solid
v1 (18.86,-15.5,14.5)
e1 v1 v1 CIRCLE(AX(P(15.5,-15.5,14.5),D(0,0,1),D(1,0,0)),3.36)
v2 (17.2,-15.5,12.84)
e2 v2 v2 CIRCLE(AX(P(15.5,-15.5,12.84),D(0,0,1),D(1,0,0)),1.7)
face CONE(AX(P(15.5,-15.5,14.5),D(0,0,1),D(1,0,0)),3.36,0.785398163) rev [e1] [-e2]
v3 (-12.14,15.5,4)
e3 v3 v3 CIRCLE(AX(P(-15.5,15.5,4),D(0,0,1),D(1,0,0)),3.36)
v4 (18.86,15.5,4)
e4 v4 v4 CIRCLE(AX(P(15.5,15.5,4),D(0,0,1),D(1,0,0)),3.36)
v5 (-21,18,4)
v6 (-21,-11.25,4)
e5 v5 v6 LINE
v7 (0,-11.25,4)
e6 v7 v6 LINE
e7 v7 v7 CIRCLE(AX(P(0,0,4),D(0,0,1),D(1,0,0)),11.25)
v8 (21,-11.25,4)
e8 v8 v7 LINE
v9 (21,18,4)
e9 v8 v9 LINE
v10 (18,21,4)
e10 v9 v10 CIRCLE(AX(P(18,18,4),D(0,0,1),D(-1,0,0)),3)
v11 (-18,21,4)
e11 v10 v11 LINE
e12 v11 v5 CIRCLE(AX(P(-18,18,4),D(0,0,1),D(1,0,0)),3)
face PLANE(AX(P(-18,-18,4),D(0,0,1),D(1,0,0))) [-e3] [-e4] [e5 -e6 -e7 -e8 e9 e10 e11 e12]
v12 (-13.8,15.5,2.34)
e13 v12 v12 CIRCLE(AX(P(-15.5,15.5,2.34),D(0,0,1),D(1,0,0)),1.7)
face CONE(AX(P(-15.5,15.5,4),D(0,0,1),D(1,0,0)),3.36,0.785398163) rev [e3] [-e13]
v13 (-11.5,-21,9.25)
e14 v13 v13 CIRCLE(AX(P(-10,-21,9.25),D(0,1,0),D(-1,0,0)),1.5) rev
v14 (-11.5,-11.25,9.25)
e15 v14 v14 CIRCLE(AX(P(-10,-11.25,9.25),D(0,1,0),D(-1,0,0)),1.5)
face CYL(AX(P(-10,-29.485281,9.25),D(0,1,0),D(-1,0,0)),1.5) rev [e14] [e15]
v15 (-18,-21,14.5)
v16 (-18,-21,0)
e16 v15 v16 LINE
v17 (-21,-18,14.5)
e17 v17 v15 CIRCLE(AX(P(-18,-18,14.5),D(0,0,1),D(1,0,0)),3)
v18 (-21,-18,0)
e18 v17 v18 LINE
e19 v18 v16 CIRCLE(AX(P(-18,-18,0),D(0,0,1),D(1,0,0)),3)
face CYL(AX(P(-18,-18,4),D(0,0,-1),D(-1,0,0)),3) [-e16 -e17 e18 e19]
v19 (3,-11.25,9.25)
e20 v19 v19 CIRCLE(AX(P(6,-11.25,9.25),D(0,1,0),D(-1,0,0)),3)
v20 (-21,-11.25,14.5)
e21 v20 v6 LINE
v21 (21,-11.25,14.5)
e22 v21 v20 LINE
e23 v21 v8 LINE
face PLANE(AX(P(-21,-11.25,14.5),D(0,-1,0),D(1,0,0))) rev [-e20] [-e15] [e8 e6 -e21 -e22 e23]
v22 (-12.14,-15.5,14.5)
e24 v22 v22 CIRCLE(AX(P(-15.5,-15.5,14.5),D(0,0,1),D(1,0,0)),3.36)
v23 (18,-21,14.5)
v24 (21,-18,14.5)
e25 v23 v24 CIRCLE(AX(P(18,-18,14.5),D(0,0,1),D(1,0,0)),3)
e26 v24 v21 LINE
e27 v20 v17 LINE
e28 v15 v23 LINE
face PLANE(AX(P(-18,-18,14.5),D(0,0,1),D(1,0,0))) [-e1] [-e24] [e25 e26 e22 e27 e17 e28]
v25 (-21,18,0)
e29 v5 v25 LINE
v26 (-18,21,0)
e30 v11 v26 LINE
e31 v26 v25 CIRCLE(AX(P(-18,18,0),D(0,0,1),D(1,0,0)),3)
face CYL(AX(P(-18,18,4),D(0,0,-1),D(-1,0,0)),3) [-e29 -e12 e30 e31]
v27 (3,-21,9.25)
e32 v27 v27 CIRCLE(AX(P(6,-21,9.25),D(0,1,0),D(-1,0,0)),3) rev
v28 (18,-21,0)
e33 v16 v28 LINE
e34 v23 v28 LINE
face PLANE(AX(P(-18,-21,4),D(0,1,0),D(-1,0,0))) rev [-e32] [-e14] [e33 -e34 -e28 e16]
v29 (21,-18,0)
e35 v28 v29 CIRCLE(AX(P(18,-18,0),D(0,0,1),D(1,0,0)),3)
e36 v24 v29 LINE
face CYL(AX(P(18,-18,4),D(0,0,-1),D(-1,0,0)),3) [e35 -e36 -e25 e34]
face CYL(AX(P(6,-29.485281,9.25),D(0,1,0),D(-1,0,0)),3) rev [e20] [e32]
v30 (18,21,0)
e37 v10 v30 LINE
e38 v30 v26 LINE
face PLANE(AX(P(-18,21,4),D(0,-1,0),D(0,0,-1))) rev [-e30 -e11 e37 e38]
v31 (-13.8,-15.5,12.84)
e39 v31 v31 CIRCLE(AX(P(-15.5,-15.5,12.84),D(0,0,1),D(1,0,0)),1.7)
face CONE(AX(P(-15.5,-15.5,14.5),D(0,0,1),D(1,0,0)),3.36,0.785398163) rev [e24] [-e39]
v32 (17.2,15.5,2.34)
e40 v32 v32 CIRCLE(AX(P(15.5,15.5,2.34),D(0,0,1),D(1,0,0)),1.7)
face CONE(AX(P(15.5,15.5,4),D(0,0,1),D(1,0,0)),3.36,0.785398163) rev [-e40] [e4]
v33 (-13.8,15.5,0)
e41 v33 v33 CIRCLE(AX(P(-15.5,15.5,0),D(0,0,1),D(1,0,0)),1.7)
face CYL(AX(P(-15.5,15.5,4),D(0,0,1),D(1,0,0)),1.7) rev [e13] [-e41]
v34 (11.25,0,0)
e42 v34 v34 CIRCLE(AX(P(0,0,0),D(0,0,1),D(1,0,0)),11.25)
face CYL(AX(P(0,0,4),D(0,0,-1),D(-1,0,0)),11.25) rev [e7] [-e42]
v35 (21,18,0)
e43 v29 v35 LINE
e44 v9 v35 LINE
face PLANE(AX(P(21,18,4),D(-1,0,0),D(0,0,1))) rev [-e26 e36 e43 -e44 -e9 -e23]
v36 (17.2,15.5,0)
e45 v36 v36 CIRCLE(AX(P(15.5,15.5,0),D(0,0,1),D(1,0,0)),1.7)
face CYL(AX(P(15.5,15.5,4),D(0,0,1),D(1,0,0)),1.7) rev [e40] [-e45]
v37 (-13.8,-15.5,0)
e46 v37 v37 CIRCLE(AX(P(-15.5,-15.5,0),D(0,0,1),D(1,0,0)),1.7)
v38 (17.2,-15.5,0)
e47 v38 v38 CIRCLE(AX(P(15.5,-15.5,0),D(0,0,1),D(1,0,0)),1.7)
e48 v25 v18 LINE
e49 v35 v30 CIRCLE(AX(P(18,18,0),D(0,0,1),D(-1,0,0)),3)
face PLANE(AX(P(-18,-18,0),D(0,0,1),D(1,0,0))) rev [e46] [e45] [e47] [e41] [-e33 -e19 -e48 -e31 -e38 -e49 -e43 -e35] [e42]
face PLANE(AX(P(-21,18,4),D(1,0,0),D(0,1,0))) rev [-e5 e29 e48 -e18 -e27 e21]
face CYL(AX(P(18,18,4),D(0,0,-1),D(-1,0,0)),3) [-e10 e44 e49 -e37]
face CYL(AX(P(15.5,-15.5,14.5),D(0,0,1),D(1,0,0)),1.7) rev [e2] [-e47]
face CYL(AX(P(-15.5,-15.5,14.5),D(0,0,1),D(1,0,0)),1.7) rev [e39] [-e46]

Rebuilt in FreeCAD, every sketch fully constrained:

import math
import FreeCAD as App
import Part
import Sketcher

doc = App.newDocument("Part")
body = doc.addObject("PartDesign::Body", "Body")

sketch1 = body.newObject("Sketcher::SketchObject", "Sketch")
sketch1.AttachmentSupport = (doc.getObject("XY_Plane"), [""])
sketch1.MapMode = "FlatFace"
sketch1.addGeometry([
    Part.LineSegment(App.Vector(18, 21, 0), App.Vector(-18, 21, 0)),
    Part.ArcOfCircle(Part.Circle(App.Vector(-18, 18, 0), App.Vector(0, 0, 1), 3), math.radians(90), math.radians(180)),
    Part.LineSegment(App.Vector(-21, 18, 0), App.Vector(-21, -18, 0)),
    Part.ArcOfCircle(Part.Circle(App.Vector(-18, -18, 0), App.Vector(0, 0, 1), 3), math.radians(180), math.radians(270)),
    Part.LineSegment(App.Vector(-18, -21, 0), App.Vector(18, -21, 0)),
    Part.ArcOfCircle(Part.Circle(App.Vector(18, -18, 0), App.Vector(0, 0, 1), 3), math.radians(-90), math.radians(0)),
    Part.LineSegment(App.Vector(21, -18, 0), App.Vector(21, 18, 0)),
    Part.ArcOfCircle(Part.Circle(App.Vector(18, 18, 0), App.Vector(0, 0, 1), 3), math.radians(0), math.radians(90)),
    Part.Circle(App.Vector(15.5, -15.5, 0), App.Vector(0, 0, 1), 1),
    Part.Circle(App.Vector(-15.5, -15.5, 0), App.Vector(0, 0, 1), 1),
    Part.Circle(App.Vector(15.5, 15.5, 0), App.Vector(0, 0, 1), 1),
    Part.Circle(App.Vector(0, 0, 0), App.Vector(0, 0, 1), 11.2),
    Part.Circle(App.Vector(-15.5, 15.5, 0), App.Vector(0, 0, 1), 1),
], False)
sketch1.addConstraint([
    Sketcher.Constraint("Tangent", 0, 2, 1, 1),
    Sketcher.Constraint("Tangent", 1, 2, 2, 1),
    Sketcher.Constraint("Tangent", 2, 2, 3, 1),
    Sketcher.Constraint("Tangent", 3, 2, 4, 1),
    Sketcher.Constraint("Tangent", 4, 2, 5, 1),
    Sketcher.Constraint("Tangent", 5, 2, 6, 1),
    Sketcher.Constraint("Tangent", 6, 2, 7, 1),
    Sketcher.Constraint("Tangent", 7, 2, 0, 1),
    Sketcher.Constraint("Horizontal", 0),
    Sketcher.Constraint("Vertical", 2),
    Sketcher.Constraint("Horizontal", 4),
    Sketcher.Constraint("Vertical", 6),
    Sketcher.Constraint("Coincident", 11, 3, -1, 1),
    Sketcher.Constraint("Equal", 1, 3),
    Sketcher.Constraint("Equal", 3, 5),
    Sketcher.Constraint("Equal", 5, 7),
    Sketcher.Constraint("Equal", 8, 9),
    Sketcher.Constraint("Equal", 9, 10),
    Sketcher.Constraint("Equal", 10, 12),
    Sketcher.Constraint("Symmetric", 1, 3, 5, 3, -1, 1),
    Sketcher.Constraint("Symmetric", 9, 3, 10, 3, -1, 1),
    Sketcher.Constraint("Symmetric", 8, 3, 12, 3, -1, 1),
    Sketcher.Constraint("Symmetric", 8, 3, 9, 3, -2),
    Sketcher.Constraint("Equal", 4, 2),
    Sketcher.Constraint("Diameter", 8, 2.0),
    Sketcher.Constraint("Radius", 1, 3.0),
    Sketcher.Constraint("Diameter", 11, 22.5),
    Sketcher.Constraint("DistanceX", 0, 2, 0, 1, 36.0),
    Sketcher.Constraint("DistanceX", 9, 3, 8, 3, 31.0),
    Sketcher.Constraint("DistanceY", 8, 3, 10, 3, 31.0),
])
pad1 = body.newObject("PartDesign::Pad", "Pad")
pad1.Profile = sketch1
pad1.Length = 4

sketch2 = body.newObject("Sketcher::SketchObject", "Sketch001")
sketch2.AttachmentSupport = (doc.getObject("XY_Plane"), [""])
sketch2.MapMode = "FlatFace"
sketch2.AttachmentOffset = App.Placement(App.Vector(0, 0, 4), App.Rotation())
sketch2.addGeometry([
    Part.LineSegment(App.Vector(21, -11.2, 0), App.Vector(-21, -11.2, 0)),
    Part.LineSegment(App.Vector(-21, -11.2, 0), App.Vector(-21, -18, 0)),
    Part.ArcOfCircle(Part.Circle(App.Vector(-18, -18, 0), App.Vector(0, 0, 1), 3), math.radians(180), math.radians(270)),
    Part.LineSegment(App.Vector(-18, -21, 0), App.Vector(18, -21, 0)),
    Part.ArcOfCircle(Part.Circle(App.Vector(18, -18, 0), App.Vector(0, 0, 1), 3), math.radians(-90), math.radians(0)),
    Part.LineSegment(App.Vector(21, -18, 0), App.Vector(21, -11.2, 0)),
    Part.Circle(App.Vector(15.5, -15.5, 0), App.Vector(0, 0, 1), 1),
    Part.Circle(App.Vector(-15.5, -15.5, 0), App.Vector(0, 0, 1), 1),
], False)
sketch2.addConstraint([
    Sketcher.Constraint("Coincident", 0, 2, 1, 1),
    Sketcher.Constraint("Tangent", 1, 2, 2, 1),
    Sketcher.Constraint("Tangent", 2, 2, 3, 1),
    Sketcher.Constraint("Tangent", 3, 2, 4, 1),
    Sketcher.Constraint("Tangent", 4, 2, 5, 1),
    Sketcher.Constraint("Coincident", 5, 2, 0, 1),
    Sketcher.Constraint("Horizontal", 0),
    Sketcher.Constraint("Vertical", 1),
    Sketcher.Constraint("Horizontal", 3),
    Sketcher.Constraint("Vertical", 5),
    Sketcher.Constraint("Equal", 2, 4),
    Sketcher.Constraint("Equal", 6, 7),
    Sketcher.Constraint("Symmetric", 6, 3, 7, 3, -2),
    Sketcher.Constraint("Diameter", 6, 2.0),
    Sketcher.Constraint("Radius", 2, 3.0),
    Sketcher.Constraint("DistanceX", 0, 2, 0, 1, 42.0),
    Sketcher.Constraint("DistanceX", 2, 3, -1, 1, 18.0),
    Sketcher.Constraint("DistanceY", 2, 3, -1, 1, 18.0),
    Sketcher.Constraint("DistanceX", 7, 3, 6, 3, 31.0),
    Sketcher.Constraint("DistanceY", 1, 2, 1, 1, 6.75),
    Sketcher.Constraint("DistanceY", 6, 3, -1, 1, 15.5),
])
pad2 = body.newObject("PartDesign::Pad", "Pad001")
pad2.Profile = sketch2
pad2.Length = 10.5

sketch3 = body.newObject("Sketcher::SketchObject", "Sketch002")
sketch3.AttachmentSupport = (doc.getObject("XZ_Plane"), [""])
sketch3.MapMode = "FlatFace"
sketch3.AttachmentOffset = App.Placement(App.Vector(0, 0, 11.25), App.Rotation())
sketch3.addGeometry([
    Part.Circle(App.Vector(6, 9.2, 0), App.Vector(0, 0, 1), 3),
    Part.Circle(App.Vector(-10, 9.2, 0), App.Vector(0, 0, 1), 1.5),
], False)
sketch3.addConstraint([
    Sketcher.Constraint("Horizontal", 0, 3, 1, 3),
    Sketcher.Constraint("Diameter", 0, 6.0),
    Sketcher.Constraint("Diameter", 1, 3.0),
    Sketcher.Constraint("DistanceX", -1, 1, 0, 3, 6.0),
    Sketcher.Constraint("DistanceX", 1, 3, -1, 1, 10.0),
    Sketcher.Constraint("DistanceY", -1, 1, 0, 3, 9.25),
])
pocket1 = body.newObject("PartDesign::Pocket", "Pocket")
pocket1.Profile = sketch3
pocket1.Length = 9.75
pocket1.Reversed = True

sketch4 = body.newObject("Sketcher::SketchObject", "Sketch003")
sketch4.AttachmentSupport = (doc.getObject("XY_Plane"), [""])
sketch4.MapMode = "FlatFace"
sketch4.AttachmentOffset = App.Placement(App.Vector(0, 0, 4), App.Rotation())
sketch4.addGeometry([
    Part.Circle(App.Vector(-15.5, 15.5, 0), App.Vector(0, 0, 1), 1.7),
    Part.Circle(App.Vector(15.5, 15.5, 0), App.Vector(0, 0, 1), 1.7),
], False)
sketch4.addConstraint([
    Sketcher.Constraint("Equal", 0, 1),
    Sketcher.Constraint("Symmetric", 0, 3, 1, 3, -2),
    Sketcher.Constraint("Diameter", 0, 3.4),
    Sketcher.Constraint("DistanceX", 0, 3, 1, 3, 31.0),
    Sketcher.Constraint("DistanceY", -1, 1, 0, 3, 15.5),
])
doc.recompute()
hole = body.newObject("PartDesign::Hole", "Hole")
hole.Profile = sketch4
hole.ThreadType = "None"
hole.Diameter = 3.4
hole.DepthType = "ThroughAll"
hole.HoleCutType = "Countersink"
hole.HoleCutDiameter = 6.72
hole.HoleCutCountersinkAngle = 90

sketch5 = body.newObject("Sketcher::SketchObject", "Sketch004")
sketch5.AttachmentSupport = (doc.getObject("XY_Plane"), [""])
sketch5.MapMode = "FlatFace"
sketch5.AttachmentOffset = App.Placement(App.Vector(0, 0, 14.5), App.Rotation())
sketch5.addGeometry([
    Part.Circle(App.Vector(-15.5, -15.5, 0), App.Vector(0, 0, 1), 1.7),
    Part.Circle(App.Vector(15.5, -15.5, 0), App.Vector(0, 0, 1), 1.7),
], False)
sketch5.addConstraint([
    Sketcher.Constraint("Equal", 0, 1),
    Sketcher.Constraint("Symmetric", 0, 3, 1, 3, -2),
    Sketcher.Constraint("Diameter", 0, 3.4),
    Sketcher.Constraint("DistanceX", 0, 3, 1, 3, 31.0),
    Sketcher.Constraint("DistanceY", 0, 3, -1, 1, 15.5),
])
doc.recompute()
hole2 = body.newObject("PartDesign::Hole", "Hole001")
hole2.Profile = sketch5
hole2.ThreadType = "None"
hole2.Diameter = 3.4
hole2.DepthType = "ThroughAll"
hole2.HoleCutType = "Countersink"
hole2.HoleCutDiameter = 6.72
hole2.HoleCutCountersinkAngle = 90

doc.recompute()
